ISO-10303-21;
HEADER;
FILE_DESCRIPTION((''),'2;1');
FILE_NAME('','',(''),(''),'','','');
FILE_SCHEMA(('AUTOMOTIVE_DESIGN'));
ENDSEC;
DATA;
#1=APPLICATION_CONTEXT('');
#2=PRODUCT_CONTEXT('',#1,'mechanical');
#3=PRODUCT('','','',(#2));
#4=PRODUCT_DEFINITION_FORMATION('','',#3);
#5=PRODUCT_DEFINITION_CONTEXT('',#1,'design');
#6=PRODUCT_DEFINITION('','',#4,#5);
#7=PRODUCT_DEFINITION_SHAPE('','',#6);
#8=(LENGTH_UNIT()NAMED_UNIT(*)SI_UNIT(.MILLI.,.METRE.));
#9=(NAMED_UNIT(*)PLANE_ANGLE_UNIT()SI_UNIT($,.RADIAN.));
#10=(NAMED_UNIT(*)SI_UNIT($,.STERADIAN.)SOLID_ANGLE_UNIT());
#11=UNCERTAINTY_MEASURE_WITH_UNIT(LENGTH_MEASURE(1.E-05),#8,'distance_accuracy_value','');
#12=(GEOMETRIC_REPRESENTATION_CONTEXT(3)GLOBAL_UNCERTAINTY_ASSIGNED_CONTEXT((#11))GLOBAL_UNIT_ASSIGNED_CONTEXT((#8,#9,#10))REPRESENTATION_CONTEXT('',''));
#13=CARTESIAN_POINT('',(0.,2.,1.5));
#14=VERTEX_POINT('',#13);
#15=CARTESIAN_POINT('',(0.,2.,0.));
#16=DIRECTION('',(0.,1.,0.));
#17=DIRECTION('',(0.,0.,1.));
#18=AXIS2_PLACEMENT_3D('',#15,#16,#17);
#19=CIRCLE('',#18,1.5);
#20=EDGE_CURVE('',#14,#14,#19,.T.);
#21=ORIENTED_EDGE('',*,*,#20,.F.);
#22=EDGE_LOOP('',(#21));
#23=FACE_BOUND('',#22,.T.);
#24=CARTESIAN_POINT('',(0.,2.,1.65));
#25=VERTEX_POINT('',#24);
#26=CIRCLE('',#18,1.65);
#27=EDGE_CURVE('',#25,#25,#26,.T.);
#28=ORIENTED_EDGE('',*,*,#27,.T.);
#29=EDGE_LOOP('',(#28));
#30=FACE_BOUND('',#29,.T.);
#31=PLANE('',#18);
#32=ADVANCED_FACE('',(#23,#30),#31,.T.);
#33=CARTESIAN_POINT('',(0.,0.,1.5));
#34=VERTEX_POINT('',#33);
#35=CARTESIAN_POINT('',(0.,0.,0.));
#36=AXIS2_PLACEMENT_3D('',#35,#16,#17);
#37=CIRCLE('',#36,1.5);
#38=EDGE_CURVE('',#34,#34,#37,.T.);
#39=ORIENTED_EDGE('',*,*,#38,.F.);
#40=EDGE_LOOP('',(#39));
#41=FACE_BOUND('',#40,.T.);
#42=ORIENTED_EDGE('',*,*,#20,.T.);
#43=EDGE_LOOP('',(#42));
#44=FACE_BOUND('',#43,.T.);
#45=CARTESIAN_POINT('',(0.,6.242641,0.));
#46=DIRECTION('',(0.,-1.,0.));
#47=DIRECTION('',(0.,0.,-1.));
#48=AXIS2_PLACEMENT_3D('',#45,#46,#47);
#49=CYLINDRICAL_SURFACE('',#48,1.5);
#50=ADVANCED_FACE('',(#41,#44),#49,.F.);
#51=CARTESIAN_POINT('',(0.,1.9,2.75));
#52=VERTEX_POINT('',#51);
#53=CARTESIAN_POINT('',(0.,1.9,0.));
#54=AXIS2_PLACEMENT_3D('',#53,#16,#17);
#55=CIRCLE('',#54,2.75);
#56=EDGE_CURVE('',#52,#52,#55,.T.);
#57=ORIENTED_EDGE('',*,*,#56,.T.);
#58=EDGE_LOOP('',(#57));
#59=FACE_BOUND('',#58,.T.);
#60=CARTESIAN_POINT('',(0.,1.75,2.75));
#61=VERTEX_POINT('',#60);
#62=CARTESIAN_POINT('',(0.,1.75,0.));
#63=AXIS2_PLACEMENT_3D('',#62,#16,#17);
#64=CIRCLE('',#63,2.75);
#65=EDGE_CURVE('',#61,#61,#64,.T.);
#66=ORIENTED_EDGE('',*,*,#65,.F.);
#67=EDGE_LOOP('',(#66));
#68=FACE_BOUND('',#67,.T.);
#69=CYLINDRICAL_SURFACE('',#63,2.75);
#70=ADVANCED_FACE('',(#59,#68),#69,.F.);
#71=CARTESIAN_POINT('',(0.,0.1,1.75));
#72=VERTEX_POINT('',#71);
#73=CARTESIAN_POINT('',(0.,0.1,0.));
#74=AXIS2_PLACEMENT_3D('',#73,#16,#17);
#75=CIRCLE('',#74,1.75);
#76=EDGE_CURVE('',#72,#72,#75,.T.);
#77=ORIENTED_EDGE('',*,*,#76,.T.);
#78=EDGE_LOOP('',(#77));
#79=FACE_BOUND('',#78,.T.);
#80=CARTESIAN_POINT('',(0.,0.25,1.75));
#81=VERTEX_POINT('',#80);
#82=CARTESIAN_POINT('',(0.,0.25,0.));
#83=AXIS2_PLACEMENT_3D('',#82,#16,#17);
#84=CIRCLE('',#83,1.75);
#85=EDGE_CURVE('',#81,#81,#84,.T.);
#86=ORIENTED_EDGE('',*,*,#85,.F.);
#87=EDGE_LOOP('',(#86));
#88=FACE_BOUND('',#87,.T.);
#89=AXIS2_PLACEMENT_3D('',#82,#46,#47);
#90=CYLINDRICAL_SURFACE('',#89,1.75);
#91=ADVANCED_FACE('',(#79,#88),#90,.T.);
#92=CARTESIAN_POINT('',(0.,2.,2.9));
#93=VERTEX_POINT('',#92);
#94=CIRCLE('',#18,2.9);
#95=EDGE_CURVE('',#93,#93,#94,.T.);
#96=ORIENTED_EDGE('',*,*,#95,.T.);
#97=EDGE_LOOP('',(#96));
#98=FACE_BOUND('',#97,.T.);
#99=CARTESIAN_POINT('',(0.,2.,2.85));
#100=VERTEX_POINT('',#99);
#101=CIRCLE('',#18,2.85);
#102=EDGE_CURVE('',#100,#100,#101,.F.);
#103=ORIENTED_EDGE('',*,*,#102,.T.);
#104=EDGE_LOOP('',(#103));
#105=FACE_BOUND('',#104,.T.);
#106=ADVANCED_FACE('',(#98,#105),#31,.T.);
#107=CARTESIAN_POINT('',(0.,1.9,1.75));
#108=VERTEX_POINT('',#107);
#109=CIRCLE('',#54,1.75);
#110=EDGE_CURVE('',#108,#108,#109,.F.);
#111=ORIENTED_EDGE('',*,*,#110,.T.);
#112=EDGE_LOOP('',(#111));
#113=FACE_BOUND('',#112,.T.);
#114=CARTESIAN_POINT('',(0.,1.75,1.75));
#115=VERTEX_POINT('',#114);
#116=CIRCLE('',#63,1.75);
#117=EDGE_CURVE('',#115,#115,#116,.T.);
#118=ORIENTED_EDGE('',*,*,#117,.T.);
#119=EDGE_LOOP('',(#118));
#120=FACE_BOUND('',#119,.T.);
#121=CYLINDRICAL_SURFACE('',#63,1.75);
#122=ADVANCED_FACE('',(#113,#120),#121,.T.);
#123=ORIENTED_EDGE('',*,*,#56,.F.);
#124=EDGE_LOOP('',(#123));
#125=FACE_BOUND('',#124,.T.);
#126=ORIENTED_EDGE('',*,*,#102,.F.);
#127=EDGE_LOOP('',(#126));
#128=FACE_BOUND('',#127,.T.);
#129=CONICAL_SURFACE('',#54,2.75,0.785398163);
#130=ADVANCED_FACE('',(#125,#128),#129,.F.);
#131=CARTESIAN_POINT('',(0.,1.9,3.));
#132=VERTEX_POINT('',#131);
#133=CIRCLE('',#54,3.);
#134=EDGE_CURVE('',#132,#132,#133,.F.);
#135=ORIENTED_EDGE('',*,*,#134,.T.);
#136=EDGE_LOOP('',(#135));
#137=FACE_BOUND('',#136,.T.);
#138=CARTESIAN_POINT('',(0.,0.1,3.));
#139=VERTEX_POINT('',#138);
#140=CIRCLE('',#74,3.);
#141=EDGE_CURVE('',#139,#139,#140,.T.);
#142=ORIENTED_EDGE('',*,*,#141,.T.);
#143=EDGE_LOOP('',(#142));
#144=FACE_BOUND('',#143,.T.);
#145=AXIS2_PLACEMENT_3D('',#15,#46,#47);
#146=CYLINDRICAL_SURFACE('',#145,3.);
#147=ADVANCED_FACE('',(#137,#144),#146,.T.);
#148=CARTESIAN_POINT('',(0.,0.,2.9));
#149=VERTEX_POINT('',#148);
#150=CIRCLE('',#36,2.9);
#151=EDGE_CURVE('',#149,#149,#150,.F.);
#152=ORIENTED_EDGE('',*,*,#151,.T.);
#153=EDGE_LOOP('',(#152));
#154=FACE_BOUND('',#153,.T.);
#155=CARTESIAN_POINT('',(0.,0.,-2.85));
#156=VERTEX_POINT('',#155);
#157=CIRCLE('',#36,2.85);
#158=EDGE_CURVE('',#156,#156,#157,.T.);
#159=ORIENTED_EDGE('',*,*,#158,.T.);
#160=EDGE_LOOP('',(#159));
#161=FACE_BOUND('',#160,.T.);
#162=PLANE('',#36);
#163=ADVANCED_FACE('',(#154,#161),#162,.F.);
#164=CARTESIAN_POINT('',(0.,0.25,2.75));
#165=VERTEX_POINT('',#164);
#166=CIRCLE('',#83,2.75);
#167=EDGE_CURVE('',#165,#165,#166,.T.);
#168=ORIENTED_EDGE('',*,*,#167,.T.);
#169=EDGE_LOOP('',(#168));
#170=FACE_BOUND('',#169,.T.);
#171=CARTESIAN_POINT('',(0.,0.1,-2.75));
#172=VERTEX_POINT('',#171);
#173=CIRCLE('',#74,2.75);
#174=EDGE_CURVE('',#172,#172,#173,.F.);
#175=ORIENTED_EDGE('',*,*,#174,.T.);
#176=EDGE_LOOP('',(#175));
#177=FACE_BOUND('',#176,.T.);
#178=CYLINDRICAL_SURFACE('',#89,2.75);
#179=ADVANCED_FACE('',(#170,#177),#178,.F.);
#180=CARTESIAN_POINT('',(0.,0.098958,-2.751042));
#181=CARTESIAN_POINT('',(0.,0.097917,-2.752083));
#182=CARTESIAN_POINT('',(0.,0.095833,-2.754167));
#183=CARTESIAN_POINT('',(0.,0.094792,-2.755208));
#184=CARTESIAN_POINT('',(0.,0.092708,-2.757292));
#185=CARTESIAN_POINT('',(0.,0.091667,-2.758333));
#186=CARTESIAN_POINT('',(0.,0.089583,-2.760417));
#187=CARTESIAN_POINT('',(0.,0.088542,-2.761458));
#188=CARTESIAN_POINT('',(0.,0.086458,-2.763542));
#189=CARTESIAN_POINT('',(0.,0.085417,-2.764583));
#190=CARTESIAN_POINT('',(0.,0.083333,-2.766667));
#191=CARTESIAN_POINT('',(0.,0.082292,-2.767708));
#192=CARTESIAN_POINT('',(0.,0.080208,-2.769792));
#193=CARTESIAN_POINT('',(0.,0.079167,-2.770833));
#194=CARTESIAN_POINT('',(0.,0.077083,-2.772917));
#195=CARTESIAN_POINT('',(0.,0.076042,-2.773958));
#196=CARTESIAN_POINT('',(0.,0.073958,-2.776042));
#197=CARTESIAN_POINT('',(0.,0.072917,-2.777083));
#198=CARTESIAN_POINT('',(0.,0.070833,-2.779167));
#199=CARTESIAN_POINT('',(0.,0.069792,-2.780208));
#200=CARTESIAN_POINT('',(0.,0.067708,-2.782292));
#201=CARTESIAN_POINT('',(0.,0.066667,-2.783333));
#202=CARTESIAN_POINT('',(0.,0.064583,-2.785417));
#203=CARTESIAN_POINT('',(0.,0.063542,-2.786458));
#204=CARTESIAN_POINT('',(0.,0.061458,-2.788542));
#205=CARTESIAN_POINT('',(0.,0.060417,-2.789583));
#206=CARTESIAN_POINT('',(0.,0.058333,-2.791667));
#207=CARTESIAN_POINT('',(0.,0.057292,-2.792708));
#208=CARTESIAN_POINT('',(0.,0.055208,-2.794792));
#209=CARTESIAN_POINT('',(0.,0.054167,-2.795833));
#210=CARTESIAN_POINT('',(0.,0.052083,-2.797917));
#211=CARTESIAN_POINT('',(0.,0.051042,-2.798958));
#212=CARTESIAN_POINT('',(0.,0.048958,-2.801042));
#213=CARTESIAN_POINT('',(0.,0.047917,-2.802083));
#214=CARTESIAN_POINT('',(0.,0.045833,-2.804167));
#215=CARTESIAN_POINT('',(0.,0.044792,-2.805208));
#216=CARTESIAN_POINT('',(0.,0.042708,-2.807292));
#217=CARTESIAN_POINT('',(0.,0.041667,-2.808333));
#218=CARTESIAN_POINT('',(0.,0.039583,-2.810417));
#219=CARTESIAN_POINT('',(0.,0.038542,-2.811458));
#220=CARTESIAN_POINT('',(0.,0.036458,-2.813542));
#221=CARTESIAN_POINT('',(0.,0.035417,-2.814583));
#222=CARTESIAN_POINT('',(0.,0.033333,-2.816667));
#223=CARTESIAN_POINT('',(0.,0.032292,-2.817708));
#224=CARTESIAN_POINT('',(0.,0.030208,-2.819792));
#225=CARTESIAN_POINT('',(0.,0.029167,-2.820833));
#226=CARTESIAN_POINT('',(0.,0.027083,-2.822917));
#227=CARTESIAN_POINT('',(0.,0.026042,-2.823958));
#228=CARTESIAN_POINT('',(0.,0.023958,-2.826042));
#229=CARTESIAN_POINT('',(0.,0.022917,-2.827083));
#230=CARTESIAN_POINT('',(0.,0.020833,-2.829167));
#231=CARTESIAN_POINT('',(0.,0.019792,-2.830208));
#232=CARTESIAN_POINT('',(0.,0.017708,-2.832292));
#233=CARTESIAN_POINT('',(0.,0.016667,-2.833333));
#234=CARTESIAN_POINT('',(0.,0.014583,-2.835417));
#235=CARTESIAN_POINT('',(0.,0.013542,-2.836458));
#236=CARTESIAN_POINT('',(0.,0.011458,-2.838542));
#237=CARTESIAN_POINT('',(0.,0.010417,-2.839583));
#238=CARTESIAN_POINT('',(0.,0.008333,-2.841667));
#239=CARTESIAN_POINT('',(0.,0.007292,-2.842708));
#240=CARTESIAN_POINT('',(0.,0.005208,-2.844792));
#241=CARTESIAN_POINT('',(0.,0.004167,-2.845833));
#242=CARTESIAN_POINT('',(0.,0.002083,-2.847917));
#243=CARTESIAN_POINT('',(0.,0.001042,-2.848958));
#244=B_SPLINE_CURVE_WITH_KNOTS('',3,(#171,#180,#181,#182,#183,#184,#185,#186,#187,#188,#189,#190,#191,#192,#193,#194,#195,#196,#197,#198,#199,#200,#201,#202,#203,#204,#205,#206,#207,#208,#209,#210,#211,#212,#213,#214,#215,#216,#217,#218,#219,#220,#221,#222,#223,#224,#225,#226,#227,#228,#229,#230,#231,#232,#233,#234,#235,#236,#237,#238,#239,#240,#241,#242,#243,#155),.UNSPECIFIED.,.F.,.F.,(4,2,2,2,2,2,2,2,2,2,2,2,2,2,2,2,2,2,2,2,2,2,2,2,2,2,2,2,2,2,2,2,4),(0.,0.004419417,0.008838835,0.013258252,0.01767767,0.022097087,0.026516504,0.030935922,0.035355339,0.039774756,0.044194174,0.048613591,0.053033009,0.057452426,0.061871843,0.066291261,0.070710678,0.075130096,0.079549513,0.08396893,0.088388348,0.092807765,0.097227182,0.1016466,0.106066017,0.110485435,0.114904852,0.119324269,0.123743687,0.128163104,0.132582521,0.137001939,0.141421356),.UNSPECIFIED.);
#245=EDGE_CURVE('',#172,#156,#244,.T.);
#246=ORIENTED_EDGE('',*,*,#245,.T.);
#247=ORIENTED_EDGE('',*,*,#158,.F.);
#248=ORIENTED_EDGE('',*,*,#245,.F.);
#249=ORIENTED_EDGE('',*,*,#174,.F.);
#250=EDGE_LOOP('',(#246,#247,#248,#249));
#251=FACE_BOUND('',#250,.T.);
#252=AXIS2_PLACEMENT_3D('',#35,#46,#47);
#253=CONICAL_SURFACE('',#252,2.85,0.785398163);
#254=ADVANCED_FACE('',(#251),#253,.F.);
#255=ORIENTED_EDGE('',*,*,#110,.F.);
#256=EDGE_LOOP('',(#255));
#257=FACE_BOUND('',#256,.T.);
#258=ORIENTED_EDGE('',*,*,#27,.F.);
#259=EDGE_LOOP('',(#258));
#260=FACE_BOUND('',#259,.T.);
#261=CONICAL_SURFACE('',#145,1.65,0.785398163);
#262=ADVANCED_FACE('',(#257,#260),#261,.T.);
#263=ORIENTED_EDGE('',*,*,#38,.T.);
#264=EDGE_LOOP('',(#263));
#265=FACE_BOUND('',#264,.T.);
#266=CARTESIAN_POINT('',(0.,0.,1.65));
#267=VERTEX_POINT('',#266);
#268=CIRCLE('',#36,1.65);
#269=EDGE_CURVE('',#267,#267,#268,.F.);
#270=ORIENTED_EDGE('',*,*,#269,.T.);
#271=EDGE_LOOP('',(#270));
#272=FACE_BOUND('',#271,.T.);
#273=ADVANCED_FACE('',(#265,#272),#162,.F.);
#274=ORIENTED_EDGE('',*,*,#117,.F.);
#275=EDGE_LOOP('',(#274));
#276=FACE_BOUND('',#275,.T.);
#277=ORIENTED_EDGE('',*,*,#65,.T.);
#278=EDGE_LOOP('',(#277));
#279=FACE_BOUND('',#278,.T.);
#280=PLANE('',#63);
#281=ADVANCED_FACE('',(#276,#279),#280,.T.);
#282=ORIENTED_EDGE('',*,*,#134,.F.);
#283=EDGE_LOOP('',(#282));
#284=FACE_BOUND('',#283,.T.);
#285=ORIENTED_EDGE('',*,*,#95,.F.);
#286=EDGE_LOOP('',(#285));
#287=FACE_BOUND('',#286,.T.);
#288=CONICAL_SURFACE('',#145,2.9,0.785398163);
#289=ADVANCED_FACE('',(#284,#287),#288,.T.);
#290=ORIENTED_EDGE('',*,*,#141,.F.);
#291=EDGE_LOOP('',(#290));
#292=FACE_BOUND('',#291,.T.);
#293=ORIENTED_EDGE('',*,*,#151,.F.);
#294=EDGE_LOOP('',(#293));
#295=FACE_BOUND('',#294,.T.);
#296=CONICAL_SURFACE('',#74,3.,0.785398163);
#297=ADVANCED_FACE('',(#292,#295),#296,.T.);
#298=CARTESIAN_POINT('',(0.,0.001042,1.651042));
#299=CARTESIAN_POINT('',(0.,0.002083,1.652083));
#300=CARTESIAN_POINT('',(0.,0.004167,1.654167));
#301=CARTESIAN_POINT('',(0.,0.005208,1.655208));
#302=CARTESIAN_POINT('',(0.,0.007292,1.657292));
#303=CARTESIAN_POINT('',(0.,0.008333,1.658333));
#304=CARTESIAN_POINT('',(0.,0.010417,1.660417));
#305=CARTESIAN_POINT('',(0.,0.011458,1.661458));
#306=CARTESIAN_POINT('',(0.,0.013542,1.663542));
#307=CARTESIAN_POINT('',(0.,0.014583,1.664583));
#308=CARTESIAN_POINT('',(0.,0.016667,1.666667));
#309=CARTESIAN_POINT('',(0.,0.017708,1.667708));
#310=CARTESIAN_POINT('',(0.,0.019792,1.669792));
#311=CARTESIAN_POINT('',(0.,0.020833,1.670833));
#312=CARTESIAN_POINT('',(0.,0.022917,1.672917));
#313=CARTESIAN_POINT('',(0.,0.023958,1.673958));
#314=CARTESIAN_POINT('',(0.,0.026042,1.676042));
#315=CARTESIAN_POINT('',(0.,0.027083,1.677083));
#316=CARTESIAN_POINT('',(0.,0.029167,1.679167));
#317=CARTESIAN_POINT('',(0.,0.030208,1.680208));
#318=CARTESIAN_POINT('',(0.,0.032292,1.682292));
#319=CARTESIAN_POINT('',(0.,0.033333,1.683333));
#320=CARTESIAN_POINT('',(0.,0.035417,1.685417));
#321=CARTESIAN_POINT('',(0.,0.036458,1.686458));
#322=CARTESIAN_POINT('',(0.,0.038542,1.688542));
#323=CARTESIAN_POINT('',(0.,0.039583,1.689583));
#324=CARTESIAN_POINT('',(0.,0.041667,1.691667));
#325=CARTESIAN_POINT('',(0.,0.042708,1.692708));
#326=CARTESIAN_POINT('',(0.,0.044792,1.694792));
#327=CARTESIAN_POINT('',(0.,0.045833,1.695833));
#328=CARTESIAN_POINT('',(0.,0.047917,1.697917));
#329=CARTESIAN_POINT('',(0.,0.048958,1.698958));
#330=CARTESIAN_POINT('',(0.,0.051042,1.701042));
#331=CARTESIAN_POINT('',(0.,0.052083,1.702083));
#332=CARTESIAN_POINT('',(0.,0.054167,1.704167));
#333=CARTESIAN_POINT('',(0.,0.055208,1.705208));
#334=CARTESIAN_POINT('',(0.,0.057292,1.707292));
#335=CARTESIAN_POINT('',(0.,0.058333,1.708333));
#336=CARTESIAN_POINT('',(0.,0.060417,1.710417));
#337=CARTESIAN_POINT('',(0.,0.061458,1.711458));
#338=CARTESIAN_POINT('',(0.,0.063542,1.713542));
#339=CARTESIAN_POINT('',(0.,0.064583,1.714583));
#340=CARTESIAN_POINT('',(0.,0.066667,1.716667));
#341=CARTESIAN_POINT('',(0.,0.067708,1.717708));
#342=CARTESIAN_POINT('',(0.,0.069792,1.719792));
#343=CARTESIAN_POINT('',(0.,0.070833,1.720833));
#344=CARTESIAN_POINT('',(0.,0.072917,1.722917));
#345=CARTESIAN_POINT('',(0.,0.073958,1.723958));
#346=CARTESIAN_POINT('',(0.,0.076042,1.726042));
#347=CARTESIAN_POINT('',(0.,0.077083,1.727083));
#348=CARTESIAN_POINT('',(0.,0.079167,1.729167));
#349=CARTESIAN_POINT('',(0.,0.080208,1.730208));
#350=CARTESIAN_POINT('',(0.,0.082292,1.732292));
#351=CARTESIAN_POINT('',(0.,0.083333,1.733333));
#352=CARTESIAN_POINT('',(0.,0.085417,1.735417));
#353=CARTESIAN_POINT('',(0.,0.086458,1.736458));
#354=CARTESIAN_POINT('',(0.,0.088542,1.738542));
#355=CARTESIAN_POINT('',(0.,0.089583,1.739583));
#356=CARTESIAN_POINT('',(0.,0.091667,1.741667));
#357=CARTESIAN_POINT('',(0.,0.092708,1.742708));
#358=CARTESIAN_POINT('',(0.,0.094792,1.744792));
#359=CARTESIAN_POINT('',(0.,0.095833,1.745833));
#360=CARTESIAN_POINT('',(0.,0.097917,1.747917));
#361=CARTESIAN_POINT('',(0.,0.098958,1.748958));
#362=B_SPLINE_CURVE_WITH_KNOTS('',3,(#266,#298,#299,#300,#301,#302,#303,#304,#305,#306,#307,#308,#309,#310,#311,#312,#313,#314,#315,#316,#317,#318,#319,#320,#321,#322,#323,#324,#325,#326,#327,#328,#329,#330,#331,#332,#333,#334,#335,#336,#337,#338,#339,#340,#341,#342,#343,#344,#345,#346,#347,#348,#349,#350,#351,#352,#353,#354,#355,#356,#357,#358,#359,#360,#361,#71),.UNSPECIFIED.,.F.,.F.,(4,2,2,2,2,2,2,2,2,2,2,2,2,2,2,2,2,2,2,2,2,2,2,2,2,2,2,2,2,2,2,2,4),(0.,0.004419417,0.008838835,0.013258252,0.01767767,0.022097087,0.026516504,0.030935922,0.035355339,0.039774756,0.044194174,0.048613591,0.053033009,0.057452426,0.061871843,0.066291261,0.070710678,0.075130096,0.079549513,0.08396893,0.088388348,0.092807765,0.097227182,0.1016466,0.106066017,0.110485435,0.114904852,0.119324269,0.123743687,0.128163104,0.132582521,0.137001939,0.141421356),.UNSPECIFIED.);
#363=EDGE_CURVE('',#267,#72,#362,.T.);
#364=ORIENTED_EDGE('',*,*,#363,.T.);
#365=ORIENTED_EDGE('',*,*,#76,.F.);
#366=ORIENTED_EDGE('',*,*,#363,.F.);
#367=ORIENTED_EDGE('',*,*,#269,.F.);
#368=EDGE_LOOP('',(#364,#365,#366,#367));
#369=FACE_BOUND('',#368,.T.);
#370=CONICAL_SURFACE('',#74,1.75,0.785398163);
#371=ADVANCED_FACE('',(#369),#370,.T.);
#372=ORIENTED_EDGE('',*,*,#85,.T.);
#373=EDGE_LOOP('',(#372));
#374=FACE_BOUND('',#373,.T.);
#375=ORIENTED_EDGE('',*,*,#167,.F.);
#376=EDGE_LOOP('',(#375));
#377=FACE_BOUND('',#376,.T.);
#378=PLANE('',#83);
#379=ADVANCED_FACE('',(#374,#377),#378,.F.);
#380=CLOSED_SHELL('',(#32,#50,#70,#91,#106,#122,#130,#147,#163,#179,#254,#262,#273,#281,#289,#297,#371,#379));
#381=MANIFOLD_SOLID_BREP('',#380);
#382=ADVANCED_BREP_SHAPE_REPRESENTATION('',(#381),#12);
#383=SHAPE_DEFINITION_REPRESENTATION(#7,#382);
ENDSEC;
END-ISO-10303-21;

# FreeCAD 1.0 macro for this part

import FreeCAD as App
import Part
import Sketcher

V = App.Vector
Q = App.Units.Quantity


def edges_at(feature, points):
    """Names of the edges that pass closest to the given points."""
    edges = feature.Shape.Edges
    near = lambda p: min(range(len(edges)), key=lambda i: edges[i].distToShape(Part.Vertex(*p))[0])
    return sorted({f"Edge{near(p) + 1}" for p in points})

doc = App.newDocument("Part")
params = doc.addObject("Spreadsheet::Sheet", "Params")
for row, (alias, value) in enumerate([
    ("sketch1_diameter", "6 mm"),
    ("pad1_length", "2 mm"),
    ("sketch2_diameter", "3 mm"),
    ("pocket1_length", "2 mm"),
    ("sketch3_diameter", "5.5 mm"),
    ("sketch3_diameter2", "3.5 mm"),
    ("pocket2_length", "0.25 mm"),
    ("sketch4_diameter", "5.5 mm"),
    ("sketch4_diameter2", "3.5 mm"),
    ("pocket3_length", "0.25 mm"),
    ("chamfer_size", "0.1 mm"),
], start=1):
    params.set(f"A{row}", alias)
    params.set(f"B{row}", "=" + value)
    params.setAlias(f"B{row}", alias)

body = doc.addObject("PartDesign::Body", "Body")

# Sketch on XZ plane
sketch1 = body.newObject("Sketcher::SketchObject", "Sketch")
sketch1.AttachmentSupport = (doc.getObject("XZ_Plane"), [""])
sketch1.MapMode = "FlatFace"
sketch1.addGeometry(Part.Circle(V(0, 0, 0), V(0, 0, 1), 3), False)
sketch1.addConstraint(Sketcher.Constraint("Coincident", 0, 3, -1, 1))
sketch1.addConstraint(Sketcher.Constraint("Diameter", 0, Q("6 mm")))
sketch1.setExpression("Constraints[1]", "Params.sketch1_diameter")
pad1 = body.newObject("PartDesign::Pad", "Pad")
pad1.Profile = sketch1
pad1.setExpression("Length", "Params.pad1_length")
pad1.Reversed = True

# Sketch on XZ plane
sketch2 = body.newObject("Sketcher::SketchObject", "Sketch001")
sketch2.AttachmentSupport = (doc.getObject("XZ_Plane"), [""])
sketch2.MapMode = "FlatFace"
sketch2.addGeometry(Part.Circle(V(0, 0, 0), V(0, 0, 1), 1.5), False)
sketch2.addConstraint(Sketcher.Constraint("Coincident", 0, 3, -1, 1))
sketch2.addConstraint(Sketcher.Constraint("Diameter", 0, Q("3 mm")))
sketch2.setExpression("Constraints[1]", "Params.sketch2_diameter")
pocket1 = body.newObject("PartDesign::Pocket", "Pocket")
pocket1.Profile = sketch2
pocket1.setExpression("Length", "Params.pocket1_length")

# Sketch on XZ plane
sketch3 = body.newObject("Sketcher::SketchObject", "Sketch002")
sketch3.AttachmentSupport = (doc.getObject("XZ_Plane"), [""])
sketch3.MapMode = "FlatFace"
sketch3.AttachmentOffset = App.Placement(V(0, 0, -2), App.Rotation())
sketch3.addGeometry(Part.Circle(V(0, 0, 0), V(0, 0, 1), 2.75), False)
sketch3.addGeometry(Part.Circle(V(0, 0, 0), V(0, 0, 1), 1.75), False)
sketch3.addConstraint(Sketcher.Constraint("Coincident", 0, 3, -1, 1))
sketch3.addConstraint(Sketcher.Constraint("Coincident", 1, 3, -1, 1))
sketch3.addConstraint(Sketcher.Constraint("Diameter", 0, Q("5.5 mm")))
sketch3.addConstraint(Sketcher.Constraint("Diameter", 1, Q("3.5 mm")))
sketch3.setExpression("Constraints[2]", "Params.sketch3_diameter")
sketch3.setExpression("Constraints[3]", "Params.sketch3_diameter2")
pocket2 = body.newObject("PartDesign::Pocket", "Pocket001")
pocket2.Profile = sketch3
pocket2.setExpression("Length", "Params.pocket2_length")
pocket2.Reversed = True

# Sketch on XZ plane
sketch4 = body.newObject("Sketcher::SketchObject", "Sketch003")
sketch4.AttachmentSupport = (doc.getObject("XZ_Plane"), [""])
sketch4.MapMode = "FlatFace"
sketch4.AttachmentOffset = App.Placement(V(0, 0, -0.25), App.Rotation())
sketch4.addGeometry(Part.Circle(V(0, 0, 0), V(0, 0, 1), 2.75), False)
sketch4.addGeometry(Part.Circle(V(0, 0, 0), V(0, 0, 1), 1.75), False)
sketch4.addConstraint(Sketcher.Constraint("Coincident", 0, 3, -1, 1))
sketch4.addConstraint(Sketcher.Constraint("Coincident", 1, 3, -1, 1))
sketch4.addConstraint(Sketcher.Constraint("Diameter", 0, Q("5.5 mm")))
sketch4.addConstraint(Sketcher.Constraint("Diameter", 1, Q("3.5 mm")))
sketch4.setExpression("Constraints[2]", "Params.sketch4_diameter")
sketch4.setExpression("Constraints[3]", "Params.sketch4_diameter2")
pocket3 = body.newObject("PartDesign::Pocket", "Pocket002")
pocket3.Profile = sketch4
pocket3.setExpression("Length", "Params.pocket3_length")
pocket3.Reversed = True
doc.recompute()

chamfer = body.newObject("PartDesign::Chamfer", "Chamfer")
chamfer.Base = (pocket3, edges_at(pocket3, [
    (0, 2, -2.75),
    (0, 2, -1.75),
    (0, 0, -1.75),
    (0, 0, -2.75),
    (0, 0, -3),
    (0, 2, -3),
]))
chamfer.setExpression("Size", "Params.chamfer_size")

doc.recompute()
